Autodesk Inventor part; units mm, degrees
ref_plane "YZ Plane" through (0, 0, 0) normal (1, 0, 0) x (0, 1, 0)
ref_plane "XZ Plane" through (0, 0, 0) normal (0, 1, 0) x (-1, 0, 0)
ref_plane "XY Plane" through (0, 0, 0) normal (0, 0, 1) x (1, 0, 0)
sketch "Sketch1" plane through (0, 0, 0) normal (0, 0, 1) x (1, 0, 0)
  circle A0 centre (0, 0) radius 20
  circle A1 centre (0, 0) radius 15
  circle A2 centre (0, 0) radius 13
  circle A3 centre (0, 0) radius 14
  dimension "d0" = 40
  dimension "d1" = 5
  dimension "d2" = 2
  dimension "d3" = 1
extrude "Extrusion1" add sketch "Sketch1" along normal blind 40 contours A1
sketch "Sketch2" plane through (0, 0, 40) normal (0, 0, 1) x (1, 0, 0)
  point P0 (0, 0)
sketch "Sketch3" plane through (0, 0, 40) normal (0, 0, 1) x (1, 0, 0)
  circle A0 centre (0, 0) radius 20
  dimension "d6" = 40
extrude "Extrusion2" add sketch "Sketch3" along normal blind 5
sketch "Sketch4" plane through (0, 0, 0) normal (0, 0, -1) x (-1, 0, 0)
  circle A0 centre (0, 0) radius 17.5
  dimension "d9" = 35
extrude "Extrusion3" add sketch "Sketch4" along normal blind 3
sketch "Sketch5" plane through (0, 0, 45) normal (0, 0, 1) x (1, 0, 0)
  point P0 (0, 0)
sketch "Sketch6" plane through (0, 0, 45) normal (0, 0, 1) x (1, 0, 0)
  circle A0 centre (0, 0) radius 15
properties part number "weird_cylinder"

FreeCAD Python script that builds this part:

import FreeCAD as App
import Part
import Sketcher

doc = App.newDocument("Part")
body = doc.addObject("PartDesign::Body", "Body")

# Sketch on XY plane
sketch1 = body.newObject("Sketcher::SketchObject", "Sketch")
sketch1.AttachmentSupport = (doc.getObject("XY_Plane"), [""])
sketch1.MapMode = "FlatFace"
sketch1.addGeometry(Part.Circle(App.Vector(0, 0, 0), App.Vector(0, 0, 1), 15), False)
sketch1.addGeometry(Part.Circle(App.Vector(0, 0, 0), App.Vector(0, 0, 1), 14), False)
sketch1.addConstraint(Sketcher.Constraint("Coincident", 0, 3, -1, 1))
sketch1.addConstraint(Sketcher.Constraint("Coincident", 1, 3, -1, 1))
sketch1.addConstraint(Sketcher.Constraint("Diameter", 0, 30.0))
sketch1.addConstraint(Sketcher.Constraint("Diameter", 1, 28.0))
pad1 = body.newObject("PartDesign::Pad", "Pad")
pad1.Profile = sketch1
pad1.Length = 40

# Sketch on XY plane
sketch2 = body.newObject("Sketcher::SketchObject", "Sketch001")
sketch2.AttachmentSupport = (doc.getObject("XY_Plane"), [""])
sketch2.MapMode = "FlatFace"
sketch2.AttachmentOffset = App.Placement(App.Vector(0, 0, 40), App.Rotation())
sketch2.addGeometry(Part.Circle(App.Vector(0, 0, 0), App.Vector(0, 0, 1), 20), False)
sketch2.addConstraint(Sketcher.Constraint("Coincident", 0, 3, -1, 1))
sketch2.addConstraint(Sketcher.Constraint("Diameter", 0, 40.0))
pad2 = body.newObject("PartDesign::Pad", "Pad001")
pad2.Profile = sketch2
pad2.Length = 5

# Sketch on XY plane
sketch3 = body.newObject("Sketcher::SketchObject", "Sketch002")
sketch3.AttachmentSupport = (doc.getObject("XY_Plane"), [""])
sketch3.MapMode = "FlatFace"
sketch3.addGeometry(Part.Circle(App.Vector(0, 0, 0), App.Vector(0, 0, 1), 17.5), False)
sketch3.addConstraint(Sketcher.Constraint("Coincident", 0, 3, -1, 1))
sketch3.addConstraint(Sketcher.Constraint("Diameter", 0, 35.0))
pad3 = body.newObject("PartDesign::Pad", "Pad002")
pad3.Profile = sketch3
pad3.Length = 3
pad3.Reversed = True

doc.recompute()
